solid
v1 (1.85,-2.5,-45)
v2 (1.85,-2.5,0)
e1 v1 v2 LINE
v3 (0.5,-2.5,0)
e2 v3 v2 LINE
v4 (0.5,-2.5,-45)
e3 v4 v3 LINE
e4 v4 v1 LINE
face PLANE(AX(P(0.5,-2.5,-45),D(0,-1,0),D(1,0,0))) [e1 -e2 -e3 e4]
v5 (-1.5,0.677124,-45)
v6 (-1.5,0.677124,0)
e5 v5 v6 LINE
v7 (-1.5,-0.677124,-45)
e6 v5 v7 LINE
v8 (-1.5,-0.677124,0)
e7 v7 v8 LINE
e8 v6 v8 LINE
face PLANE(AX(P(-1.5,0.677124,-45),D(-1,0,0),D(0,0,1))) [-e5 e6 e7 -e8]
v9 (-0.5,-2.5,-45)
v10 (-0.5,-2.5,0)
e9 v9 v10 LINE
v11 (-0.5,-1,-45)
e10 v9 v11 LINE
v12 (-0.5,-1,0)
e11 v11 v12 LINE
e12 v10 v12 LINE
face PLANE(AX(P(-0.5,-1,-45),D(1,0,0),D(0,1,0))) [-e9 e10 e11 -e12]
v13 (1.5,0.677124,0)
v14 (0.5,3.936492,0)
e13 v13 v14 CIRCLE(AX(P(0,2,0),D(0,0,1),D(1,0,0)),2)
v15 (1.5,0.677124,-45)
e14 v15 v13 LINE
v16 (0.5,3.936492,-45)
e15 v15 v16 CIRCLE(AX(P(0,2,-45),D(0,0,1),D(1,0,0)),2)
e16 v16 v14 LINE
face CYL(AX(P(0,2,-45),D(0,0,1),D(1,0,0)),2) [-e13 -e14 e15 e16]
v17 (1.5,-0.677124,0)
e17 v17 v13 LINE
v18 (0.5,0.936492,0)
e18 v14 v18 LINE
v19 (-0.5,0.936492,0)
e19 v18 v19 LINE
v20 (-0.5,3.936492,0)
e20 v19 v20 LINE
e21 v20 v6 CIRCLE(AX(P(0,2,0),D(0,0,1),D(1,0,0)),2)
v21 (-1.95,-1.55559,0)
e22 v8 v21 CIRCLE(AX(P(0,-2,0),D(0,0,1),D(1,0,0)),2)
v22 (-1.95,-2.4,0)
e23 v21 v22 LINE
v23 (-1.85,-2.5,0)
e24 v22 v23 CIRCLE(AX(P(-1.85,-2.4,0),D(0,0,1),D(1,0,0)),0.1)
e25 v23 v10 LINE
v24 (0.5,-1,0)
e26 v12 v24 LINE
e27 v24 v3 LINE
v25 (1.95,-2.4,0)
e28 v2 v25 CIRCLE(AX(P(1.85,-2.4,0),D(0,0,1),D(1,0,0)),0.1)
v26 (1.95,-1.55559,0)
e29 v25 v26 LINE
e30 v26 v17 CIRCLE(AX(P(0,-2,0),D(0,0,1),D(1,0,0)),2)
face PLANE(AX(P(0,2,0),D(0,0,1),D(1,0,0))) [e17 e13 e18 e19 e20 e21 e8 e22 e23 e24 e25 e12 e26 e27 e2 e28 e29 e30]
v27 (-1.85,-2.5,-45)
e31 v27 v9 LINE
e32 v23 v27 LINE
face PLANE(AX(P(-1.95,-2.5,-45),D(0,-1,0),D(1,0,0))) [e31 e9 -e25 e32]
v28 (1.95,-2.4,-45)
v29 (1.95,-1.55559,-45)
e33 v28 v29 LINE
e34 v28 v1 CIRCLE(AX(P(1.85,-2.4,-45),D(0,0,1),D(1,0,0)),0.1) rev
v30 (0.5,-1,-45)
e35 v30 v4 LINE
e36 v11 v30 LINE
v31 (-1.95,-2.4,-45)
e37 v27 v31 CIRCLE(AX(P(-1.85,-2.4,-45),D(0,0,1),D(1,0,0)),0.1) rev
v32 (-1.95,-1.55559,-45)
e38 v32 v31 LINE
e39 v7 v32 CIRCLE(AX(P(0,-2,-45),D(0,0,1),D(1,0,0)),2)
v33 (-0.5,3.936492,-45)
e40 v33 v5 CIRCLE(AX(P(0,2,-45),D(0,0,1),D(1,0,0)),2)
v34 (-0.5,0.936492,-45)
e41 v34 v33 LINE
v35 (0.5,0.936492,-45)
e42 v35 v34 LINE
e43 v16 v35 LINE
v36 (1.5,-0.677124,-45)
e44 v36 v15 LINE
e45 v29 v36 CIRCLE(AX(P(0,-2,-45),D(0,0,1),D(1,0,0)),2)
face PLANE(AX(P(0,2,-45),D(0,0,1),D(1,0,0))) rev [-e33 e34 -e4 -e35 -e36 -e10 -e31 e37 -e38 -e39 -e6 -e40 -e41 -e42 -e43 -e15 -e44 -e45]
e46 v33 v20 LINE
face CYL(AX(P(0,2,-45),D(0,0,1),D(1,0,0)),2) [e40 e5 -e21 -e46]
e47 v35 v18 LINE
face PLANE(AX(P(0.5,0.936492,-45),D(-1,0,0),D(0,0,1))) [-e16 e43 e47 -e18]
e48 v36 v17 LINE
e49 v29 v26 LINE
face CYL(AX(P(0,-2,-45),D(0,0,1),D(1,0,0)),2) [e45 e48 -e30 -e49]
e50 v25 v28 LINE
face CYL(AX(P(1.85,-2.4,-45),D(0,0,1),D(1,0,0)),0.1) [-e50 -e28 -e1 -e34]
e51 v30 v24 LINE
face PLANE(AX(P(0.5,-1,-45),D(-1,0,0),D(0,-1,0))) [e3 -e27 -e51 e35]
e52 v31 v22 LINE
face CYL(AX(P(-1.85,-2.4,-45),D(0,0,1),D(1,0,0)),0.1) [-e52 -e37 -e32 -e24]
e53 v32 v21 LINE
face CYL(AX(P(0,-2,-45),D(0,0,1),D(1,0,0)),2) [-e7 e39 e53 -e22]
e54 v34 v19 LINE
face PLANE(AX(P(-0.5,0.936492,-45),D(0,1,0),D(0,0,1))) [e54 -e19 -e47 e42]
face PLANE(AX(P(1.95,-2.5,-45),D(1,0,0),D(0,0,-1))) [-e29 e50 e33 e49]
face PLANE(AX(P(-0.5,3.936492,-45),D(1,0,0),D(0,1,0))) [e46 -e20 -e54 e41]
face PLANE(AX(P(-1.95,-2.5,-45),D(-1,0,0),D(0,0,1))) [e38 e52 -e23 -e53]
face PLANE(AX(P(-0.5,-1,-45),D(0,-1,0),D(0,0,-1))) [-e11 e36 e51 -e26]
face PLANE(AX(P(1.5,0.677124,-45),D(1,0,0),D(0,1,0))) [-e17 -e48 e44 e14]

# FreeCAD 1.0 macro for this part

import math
import FreeCAD as App
import Part
import Sketcher

V = App.Vector


def edges_at(feature, points):
    """Names of the edges that pass closest to the given points."""
    edges = feature.Shape.Edges
    near = lambda p: min(range(len(edges)), key=lambda i: edges[i].distToShape(Part.Vertex(*p))[0])
    return sorted({f"Edge{near(p) + 1}" for p in points})

doc = App.newDocument("Part")
body = doc.addObject("PartDesign::Body", "Body")

# Sketch on XY plane
sketch1 = body.newObject("Sketcher::SketchObject", "Sketch")
sketch1.AttachmentSupport = (doc.getObject("XY_Plane"), [""])
sketch1.MapMode = "FlatFace"
sketch1.addGeometry([
    Part.LineSegment(V(-1.95, -2.5, 0), V(-0.5, -2.5, 0)),  # 0
    Part.LineSegment(V(-0.5, -2.5, 0), V(-0.5, -1, 0)),  # 1
    Part.LineSegment(V(-0.5, -1, 0), V(0.5, -1, 0)),  # 2
    Part.LineSegment(V(0.5, -1, 0), V(0.5, -2.5, 0)),  # 3
    Part.LineSegment(V(0.5, -2.5, 0), V(1.95, -2.5, 0)),  # 4
    Part.LineSegment(V(1.95, -2.5, 0), V(1.95, -1.55559, 0)),  # 5
    Part.ArcOfCircle(Part.Circle(V(0, -2, 0), V(0, 0, 1), 2), math.radians(12.838568), math.radians(41.409622)),  # 6
    Part.LineSegment(V(1.5, -0.677124, 0), V(1.5, 0.677124, 0)),  # 7
    Part.ArcOfCircle(Part.Circle(V(0, 2, 0), V(0, 0, 1), 2), math.radians(-41.409622), math.radians(75.522488)),  # 8
    Part.LineSegment(V(0.5, 3.936492, 0), V(0.5, 0.936492, 0)),  # 9
    Part.LineSegment(V(0.5, 0.936492, 0), V(-0.5, 0.936492, 0)),  # 10
    Part.LineSegment(V(-0.5, 0.936492, 0), V(-0.5, 3.936492, 0)),  # 11
    Part.ArcOfCircle(Part.Circle(V(0, 2, 0), V(0, 0, 1), 2), math.radians(104.477512), math.radians(221.409622)),  # 12
    Part.LineSegment(V(-1.5, 0.677124, 0), V(-1.5, -0.677124, 0)),  # 13
    Part.ArcOfCircle(Part.Circle(V(0, -2, 0), V(0, 0, 1), 2), math.radians(138.590378), math.radians(167.161432)),  # 14
    Part.LineSegment(V(-1.95, -1.55559, 0), V(-1.95, -2.5, 0)),  # 15
], False)
sketch1.addConstraint([
    Sketcher.Constraint("Coincident", 0, 2, 1, 1),
    Sketcher.Constraint("Coincident", 1, 2, 2, 1),
    Sketcher.Constraint("Coincident", 2, 2, 3, 1),
    Sketcher.Constraint("Coincident", 3, 2, 4, 1),
    Sketcher.Constraint("Coincident", 4, 2, 5, 1),
    Sketcher.Constraint("Coincident", 5, 2, 6, 1),
    Sketcher.Constraint("Coincident", 6, 2, 7, 1),
    Sketcher.Constraint("Coincident", 7, 2, 8, 1),
    Sketcher.Constraint("Coincident", 8, 2, 9, 1),
    Sketcher.Constraint("Coincident", 9, 2, 10, 1),
    Sketcher.Constraint("Coincident", 10, 2, 11, 1),
    Sketcher.Constraint("Coincident", 11, 2, 12, 1),
    Sketcher.Constraint("Coincident", 12, 2, 13, 1),
    Sketcher.Constraint("Coincident", 13, 2, 14, 1),
    Sketcher.Constraint("Coincident", 14, 2, 15, 1),
    Sketcher.Constraint("Coincident", 15, 2, 0, 1),
    Sketcher.Constraint("Horizontal", 0),
    Sketcher.Constraint("Vertical", 1),
    Sketcher.Constraint("Horizontal", 2),
    Sketcher.Constraint("Vertical", 3),
    Sketcher.Constraint("Horizontal", 4),
    Sketcher.Constraint("Vertical", 5),
    Sketcher.Constraint("Vertical", 7),
    Sketcher.Constraint("Vertical", 9),
    Sketcher.Constraint("Horizontal", 10),
    Sketcher.Constraint("Vertical", 11),
    Sketcher.Constraint("Vertical", 13),
    Sketcher.Constraint("Vertical", 15),
    Sketcher.Constraint("Coincident", 12, 3, 8, 3),
    Sketcher.Constraint("Coincident", 14, 3, 6, 3),
    Sketcher.Constraint("Equal", 6, 8),
    Sketcher.Constraint("Equal", 8, 12),
    Sketcher.Constraint("Equal", 12, 14),
    Sketcher.Constraint("Symmetric", 6, 3, 8, 3, -1, 1),
    Sketcher.Constraint("Symmetric", 0, 2, 3, 2, -2),
    Sketcher.Constraint("Symmetric", 8, 2, 11, 2, -2),
    Sketcher.Constraint("Horizontal", 7, 2, 12, 2),
    Sketcher.Constraint("Horizontal", 5, 2, 14, 2),
    Sketcher.Constraint("Vertical", 3, 2, 8, 2),
    Sketcher.Constraint("Radius", 6, 2.0),
    Sketcher.Constraint("DistanceX", 2, 1, 2, 2, 1.0),
    Sketcher.Constraint("DistanceY", 9, 2, 9, 1, 3.0),
    Sketcher.Constraint("DistanceY", 1, 1, 1, 2, 1.5),
    Sketcher.Constraint("DistanceY", 6, 3, -1, 1, 2.0),
    Sketcher.Constraint("DistanceY", 1, 2, -1, 1, 1.0),
    Sketcher.Constraint("DistanceX", 2, 2, 6, 2, 1.0),
    Sketcher.Constraint("DistanceX", 0, 1, 0, 2, 1.45),
])
pad1 = body.newObject("PartDesign::Pad", "Pad")
pad1.Profile = sketch1
pad1.Length = 45
pad1.Reversed = True
doc.recompute()

fillet = body.newObject("PartDesign::Fillet", "Fillet")
fillet.Base = (pad1, edges_at(pad1, [(1.95, -2.5, -22.5), (-1.95, -2.5, -22.5)]))
fillet.Radius = 0.1

doc.recompute()
